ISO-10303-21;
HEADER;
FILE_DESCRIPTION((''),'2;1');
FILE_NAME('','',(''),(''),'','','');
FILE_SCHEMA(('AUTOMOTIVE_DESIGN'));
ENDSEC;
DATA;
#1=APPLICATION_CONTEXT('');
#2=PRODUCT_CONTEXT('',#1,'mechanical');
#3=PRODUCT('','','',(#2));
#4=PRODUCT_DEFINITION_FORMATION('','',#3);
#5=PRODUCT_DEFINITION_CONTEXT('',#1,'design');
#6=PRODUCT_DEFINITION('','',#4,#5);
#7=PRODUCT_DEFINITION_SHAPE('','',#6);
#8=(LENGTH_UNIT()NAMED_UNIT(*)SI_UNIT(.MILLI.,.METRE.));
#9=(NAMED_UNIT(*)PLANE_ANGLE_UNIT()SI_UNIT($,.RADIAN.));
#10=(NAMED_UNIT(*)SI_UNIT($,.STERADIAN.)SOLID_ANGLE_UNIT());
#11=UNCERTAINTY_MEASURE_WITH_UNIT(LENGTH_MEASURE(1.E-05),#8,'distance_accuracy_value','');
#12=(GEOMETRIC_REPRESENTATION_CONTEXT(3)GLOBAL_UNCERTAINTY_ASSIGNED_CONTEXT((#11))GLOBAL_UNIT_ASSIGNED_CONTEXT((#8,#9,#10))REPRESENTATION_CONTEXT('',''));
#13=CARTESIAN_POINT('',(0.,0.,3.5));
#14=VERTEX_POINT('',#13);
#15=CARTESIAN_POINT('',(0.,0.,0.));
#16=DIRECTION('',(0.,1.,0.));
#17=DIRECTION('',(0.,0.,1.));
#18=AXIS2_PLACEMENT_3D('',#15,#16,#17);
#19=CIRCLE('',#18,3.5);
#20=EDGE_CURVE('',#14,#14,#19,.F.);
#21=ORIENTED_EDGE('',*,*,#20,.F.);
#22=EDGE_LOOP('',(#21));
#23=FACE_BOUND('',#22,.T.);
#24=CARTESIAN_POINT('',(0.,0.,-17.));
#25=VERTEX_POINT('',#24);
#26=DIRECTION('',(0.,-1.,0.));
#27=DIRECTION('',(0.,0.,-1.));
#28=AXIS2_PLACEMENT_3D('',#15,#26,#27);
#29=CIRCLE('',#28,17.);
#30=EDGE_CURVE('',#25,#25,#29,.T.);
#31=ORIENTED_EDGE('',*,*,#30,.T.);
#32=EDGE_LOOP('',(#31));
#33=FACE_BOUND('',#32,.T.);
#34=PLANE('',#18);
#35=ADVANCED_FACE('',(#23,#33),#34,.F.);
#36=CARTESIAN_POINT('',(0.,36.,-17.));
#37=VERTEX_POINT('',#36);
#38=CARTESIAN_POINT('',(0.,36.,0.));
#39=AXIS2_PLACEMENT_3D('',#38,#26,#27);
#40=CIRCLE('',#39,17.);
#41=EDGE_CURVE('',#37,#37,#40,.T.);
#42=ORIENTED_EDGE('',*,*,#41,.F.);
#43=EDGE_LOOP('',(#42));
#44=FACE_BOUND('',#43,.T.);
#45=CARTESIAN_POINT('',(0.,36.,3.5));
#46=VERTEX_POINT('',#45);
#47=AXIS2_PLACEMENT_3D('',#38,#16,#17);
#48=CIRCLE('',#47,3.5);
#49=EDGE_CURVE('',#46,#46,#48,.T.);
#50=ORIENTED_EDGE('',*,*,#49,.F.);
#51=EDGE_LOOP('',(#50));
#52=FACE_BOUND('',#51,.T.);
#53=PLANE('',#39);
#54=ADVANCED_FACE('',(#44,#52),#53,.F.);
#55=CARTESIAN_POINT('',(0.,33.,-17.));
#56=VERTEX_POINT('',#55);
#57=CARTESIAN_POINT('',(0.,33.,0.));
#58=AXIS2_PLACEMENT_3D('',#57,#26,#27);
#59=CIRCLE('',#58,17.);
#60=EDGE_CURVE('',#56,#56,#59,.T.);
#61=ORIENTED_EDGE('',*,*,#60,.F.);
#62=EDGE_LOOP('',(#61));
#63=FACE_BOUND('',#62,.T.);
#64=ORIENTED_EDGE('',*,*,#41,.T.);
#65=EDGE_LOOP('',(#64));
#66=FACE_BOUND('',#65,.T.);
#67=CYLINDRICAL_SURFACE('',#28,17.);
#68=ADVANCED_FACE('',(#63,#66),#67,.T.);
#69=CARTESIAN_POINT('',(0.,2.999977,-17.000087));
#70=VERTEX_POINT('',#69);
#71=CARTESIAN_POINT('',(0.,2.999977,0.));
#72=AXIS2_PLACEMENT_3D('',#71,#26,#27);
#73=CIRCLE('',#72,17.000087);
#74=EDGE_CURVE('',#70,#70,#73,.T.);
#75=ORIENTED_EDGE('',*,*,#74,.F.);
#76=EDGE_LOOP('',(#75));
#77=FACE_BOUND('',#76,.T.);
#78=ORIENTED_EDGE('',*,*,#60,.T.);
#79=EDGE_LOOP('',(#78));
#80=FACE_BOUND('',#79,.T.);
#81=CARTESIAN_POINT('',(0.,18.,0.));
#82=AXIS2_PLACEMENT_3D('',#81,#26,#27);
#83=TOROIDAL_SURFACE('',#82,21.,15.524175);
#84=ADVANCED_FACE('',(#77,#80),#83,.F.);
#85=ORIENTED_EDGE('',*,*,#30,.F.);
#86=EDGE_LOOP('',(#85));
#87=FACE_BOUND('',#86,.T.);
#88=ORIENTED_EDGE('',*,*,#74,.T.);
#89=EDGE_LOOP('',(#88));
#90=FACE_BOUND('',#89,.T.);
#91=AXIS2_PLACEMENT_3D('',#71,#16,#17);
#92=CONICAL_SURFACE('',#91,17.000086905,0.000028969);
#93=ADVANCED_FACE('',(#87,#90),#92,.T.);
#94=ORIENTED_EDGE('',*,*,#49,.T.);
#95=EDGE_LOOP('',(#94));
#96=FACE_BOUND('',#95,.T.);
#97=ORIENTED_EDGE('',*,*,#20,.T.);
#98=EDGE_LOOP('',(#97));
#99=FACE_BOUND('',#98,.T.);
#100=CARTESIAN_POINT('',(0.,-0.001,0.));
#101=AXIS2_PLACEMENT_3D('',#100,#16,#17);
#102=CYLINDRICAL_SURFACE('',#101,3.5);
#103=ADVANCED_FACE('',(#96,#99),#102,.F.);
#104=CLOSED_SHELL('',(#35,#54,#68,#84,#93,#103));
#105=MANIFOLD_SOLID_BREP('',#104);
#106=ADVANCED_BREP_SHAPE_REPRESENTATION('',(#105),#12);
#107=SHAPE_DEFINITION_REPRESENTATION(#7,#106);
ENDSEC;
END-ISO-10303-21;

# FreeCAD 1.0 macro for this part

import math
import FreeCAD as App
import Part
import Sketcher

V = App.Vector
Q = App.Units.Quantity

doc = App.newDocument("Part")
params = doc.addObject("Spreadsheet::Sheet", "Params")
for row, (alias, value) in enumerate([
    ("sketch1_width", "17 mm"),
    ("sketch1_height", "36 mm"),
    ("sketch1_height2", "3 mm"),
    ("revolution_angle", "360 deg"),
    ("sketch2_diameter", "7 mm"),
], start=1):
    params.set(f"A{row}", alias)
    params.set(f"B{row}", "=" + value)
    params.setAlias(f"B{row}", alias)

body = doc.addObject("PartDesign::Body", "Body")

# Sketch on XY plane
sketch1 = body.newObject("Sketcher::SketchObject", "Sketch")
sketch1.AttachmentSupport = (doc.getObject("XY_Plane"), [""])
sketch1.MapMode = "FlatFace"
sketch1.addGeometry(Part.LineSegment(V(0, 0, 0), V(0, 36, 0)), False)
sketch1.addGeometry(Part.LineSegment(V(0, 36, 0), V(-17, 36, 0)), False)
sketch1.addGeometry(Part.LineSegment(V(-17, 36, 0), V(-17, 33, 0)), False)
sketch1.addGeometry(Part.ArcOfCircle(Part.Circle(V(-21, 18, 0), V(0, 0, 1), 15.524175), math.radians(-75.068915), math.radians(75.068583)), False)
sketch1.addGeometry(Part.LineSegment(V(-17.000087, 2.999977, 0), V(-17, 0, 0)), False)
sketch1.addGeometry(Part.LineSegment(V(-17, 0, 0), V(0, 0, 0)), False)
sketch1.addConstraint(Sketcher.Constraint("Coincident", 0, 2, 1, 1))
sketch1.addConstraint(Sketcher.Constraint("Coincident", 1, 2, 2, 1))
sketch1.addConstraint(Sketcher.Constraint("Coincident", 2, 2, 3, 2))
sketch1.addConstraint(Sketcher.Constraint("Coincident", 3, 1, 4, 1))
sketch1.addConstraint(Sketcher.Constraint("Coincident", 4, 2, 5, 1))
sketch1.addConstraint(Sketcher.Constraint("Coincident", 5, 2, 0, 1))
sketch1.addConstraint(Sketcher.Constraint("Vertical", 0))
sketch1.addConstraint(Sketcher.Constraint("Horizontal", 1))
sketch1.addConstraint(Sketcher.Constraint("Vertical", 2))
sketch1.addConstraint(Sketcher.Constraint("Horizontal", 5))
sketch1.addConstraint(Sketcher.Constraint("Coincident", 5, 2, -1, 1))
sketch1.addConstraint(Sketcher.Constraint("Vertical", 2, 2, 4, 2))
sketch1.addConstraint(Sketcher.Constraint("DistanceX", 1, 2, 1, 1, Q("17 mm")))
sketch1.addConstraint(Sketcher.Constraint("DistanceY", 0, 1, 0, 2, Q("36 mm")))
sketch1.addConstraint(Sketcher.Constraint("DistanceY", 2, 2, 2, 1, Q("3 mm")))
sketch1.addConstraint(Sketcher.Constraint("DistanceX", 3, 3, -1, 1, Q("21 mm")))
sketch1.addConstraint(Sketcher.Constraint("DistanceY", -1, 1, 3, 3, Q("18 mm")))
sketch1.addConstraint(Sketcher.Constraint("Distance", 4, Q("2.999977 mm")))
sketch1.setExpression("Constraints[12]", "Params.sketch1_width")
sketch1.setExpression("Constraints[13]", "Params.sketch1_height")
sketch1.setExpression("Constraints[14]", "Params.sketch1_height2")
revolution = body.newObject("PartDesign::Revolution", "Revolution")
revolution.Profile = sketch1
revolution.ReferenceAxis = (sketch1, ["V_Axis"])
revolution.setExpression("Angle", "Params.revolution_angle")

# Sketch on XZ plane
sketch2 = body.newObject("Sketcher::SketchObject", "Sketch001")
sketch2.AttachmentSupport = (doc.getObject("XZ_Plane"), [""])
sketch2.MapMode = "FlatFace"
sketch2.AttachmentOffset = App.Placement(V(0, 0, -36), App.Rotation())
sketch2.addGeometry(Part.Circle(V(0, 0, 0), V(0, 0, 1), 3.5), False)
sketch2.addConstraint(Sketcher.Constraint("Coincident", 0, 3, -1, 1))
sketch2.addConstraint(Sketcher.Constraint("Diameter", 0, Q("7 mm")))
sketch2.setExpression("Constraints[1]", "Params.sketch2_diameter")
pocket1 = body.newObject("PartDesign::Pocket", "Pocket")
pocket1.Profile = sketch2
pocket1.Type = "UpToFirst"
pocket1.Reversed = True

doc.recompute()
